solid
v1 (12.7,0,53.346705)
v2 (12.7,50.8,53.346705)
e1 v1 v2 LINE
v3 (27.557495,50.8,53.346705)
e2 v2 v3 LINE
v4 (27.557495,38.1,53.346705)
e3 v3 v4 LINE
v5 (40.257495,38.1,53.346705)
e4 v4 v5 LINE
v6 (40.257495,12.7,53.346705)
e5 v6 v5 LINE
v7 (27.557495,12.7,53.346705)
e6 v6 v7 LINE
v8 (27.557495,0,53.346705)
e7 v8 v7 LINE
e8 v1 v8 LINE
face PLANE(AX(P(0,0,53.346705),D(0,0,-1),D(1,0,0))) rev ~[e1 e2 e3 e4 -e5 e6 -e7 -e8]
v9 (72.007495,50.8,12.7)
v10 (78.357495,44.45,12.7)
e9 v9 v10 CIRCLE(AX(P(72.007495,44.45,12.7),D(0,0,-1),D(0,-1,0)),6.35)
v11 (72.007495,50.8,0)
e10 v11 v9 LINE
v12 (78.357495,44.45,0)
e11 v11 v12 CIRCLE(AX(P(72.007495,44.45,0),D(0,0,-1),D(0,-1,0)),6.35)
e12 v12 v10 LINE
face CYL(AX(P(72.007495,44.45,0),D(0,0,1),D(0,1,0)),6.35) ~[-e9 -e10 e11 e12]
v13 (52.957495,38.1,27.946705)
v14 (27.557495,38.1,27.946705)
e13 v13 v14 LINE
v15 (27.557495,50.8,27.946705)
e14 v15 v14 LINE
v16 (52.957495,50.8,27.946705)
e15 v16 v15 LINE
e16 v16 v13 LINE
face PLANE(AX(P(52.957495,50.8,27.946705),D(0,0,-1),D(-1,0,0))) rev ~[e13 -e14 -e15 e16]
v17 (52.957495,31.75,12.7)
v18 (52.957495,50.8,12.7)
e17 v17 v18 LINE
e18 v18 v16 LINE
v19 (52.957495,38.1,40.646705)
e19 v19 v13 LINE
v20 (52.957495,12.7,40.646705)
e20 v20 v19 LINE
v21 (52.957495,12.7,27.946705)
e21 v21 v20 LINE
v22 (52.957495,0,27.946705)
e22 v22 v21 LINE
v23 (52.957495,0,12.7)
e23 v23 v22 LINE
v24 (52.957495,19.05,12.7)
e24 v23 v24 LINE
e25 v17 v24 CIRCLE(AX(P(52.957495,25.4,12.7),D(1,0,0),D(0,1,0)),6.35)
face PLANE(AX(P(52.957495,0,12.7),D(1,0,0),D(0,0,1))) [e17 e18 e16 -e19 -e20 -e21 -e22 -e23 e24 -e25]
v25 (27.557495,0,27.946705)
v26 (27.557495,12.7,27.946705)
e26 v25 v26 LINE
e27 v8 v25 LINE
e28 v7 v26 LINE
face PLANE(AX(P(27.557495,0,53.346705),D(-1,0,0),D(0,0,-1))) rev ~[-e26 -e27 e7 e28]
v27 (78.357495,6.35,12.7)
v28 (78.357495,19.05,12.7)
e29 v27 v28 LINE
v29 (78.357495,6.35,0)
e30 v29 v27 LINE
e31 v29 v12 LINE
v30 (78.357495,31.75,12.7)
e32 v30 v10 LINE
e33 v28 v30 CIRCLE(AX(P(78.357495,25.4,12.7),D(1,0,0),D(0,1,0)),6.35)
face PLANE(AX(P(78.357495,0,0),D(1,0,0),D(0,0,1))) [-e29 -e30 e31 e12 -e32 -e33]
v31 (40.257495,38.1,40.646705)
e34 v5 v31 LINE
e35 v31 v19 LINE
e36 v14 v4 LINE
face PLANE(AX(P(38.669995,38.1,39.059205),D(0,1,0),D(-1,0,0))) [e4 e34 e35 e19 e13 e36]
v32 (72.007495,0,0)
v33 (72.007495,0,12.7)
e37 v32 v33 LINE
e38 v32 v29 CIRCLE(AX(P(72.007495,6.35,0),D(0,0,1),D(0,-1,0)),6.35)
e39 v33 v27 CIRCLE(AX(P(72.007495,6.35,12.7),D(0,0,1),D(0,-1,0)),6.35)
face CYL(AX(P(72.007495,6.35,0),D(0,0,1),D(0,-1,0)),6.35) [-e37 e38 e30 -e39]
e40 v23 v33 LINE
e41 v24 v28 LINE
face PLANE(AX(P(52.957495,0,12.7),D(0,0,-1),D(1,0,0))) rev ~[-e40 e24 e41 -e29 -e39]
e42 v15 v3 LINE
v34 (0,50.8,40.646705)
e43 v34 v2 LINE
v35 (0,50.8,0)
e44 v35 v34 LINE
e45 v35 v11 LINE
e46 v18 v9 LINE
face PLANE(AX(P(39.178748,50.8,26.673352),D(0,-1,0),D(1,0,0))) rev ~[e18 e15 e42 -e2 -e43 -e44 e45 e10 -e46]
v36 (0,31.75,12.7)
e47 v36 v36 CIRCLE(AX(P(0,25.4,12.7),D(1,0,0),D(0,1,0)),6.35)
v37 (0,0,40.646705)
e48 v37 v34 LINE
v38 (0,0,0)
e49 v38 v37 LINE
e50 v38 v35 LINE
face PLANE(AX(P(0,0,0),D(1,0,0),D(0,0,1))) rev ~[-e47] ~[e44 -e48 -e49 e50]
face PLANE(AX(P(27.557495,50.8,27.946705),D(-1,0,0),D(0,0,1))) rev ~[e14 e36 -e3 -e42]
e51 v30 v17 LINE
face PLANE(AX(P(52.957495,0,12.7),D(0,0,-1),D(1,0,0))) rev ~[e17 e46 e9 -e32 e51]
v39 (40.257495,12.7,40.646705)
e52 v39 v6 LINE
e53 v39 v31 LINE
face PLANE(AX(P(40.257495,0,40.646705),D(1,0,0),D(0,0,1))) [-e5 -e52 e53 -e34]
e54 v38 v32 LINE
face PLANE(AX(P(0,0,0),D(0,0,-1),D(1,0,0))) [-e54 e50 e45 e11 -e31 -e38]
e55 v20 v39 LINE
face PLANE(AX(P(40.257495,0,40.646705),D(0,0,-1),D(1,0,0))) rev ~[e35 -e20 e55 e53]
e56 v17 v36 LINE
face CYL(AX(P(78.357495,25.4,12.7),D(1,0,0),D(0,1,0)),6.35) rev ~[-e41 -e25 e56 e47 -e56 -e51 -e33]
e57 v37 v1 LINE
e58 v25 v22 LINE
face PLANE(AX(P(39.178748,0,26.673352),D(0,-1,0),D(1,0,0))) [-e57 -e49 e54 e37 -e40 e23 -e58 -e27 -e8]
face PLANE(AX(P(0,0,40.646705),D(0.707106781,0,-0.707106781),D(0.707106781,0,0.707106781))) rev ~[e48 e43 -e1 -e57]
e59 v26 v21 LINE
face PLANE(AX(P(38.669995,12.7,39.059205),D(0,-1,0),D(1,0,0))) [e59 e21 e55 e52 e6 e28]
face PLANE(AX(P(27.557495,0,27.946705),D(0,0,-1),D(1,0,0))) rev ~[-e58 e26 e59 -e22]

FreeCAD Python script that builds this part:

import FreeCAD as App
import Part
import Sketcher
Q = App.Units.Quantity


def edges_at(feature, points):
    """Names of the edges that pass closest to the given points."""
    edges = feature.Shape.Edges
    near = lambda p: min(range(len(edges)), key=lambda i: edges[i].distToShape(Part.Vertex(*p))[0])
    return sorted({f"Edge{near(p) + 1}" for p in points})

doc = App.newDocument("Part")
body = doc.addObject("PartDesign::Body", "Body")

# Sketch on XZ plane
sketch1 = doc.addObject("Sketcher::SketchObject", "Sketch")
body.addObject(sketch1)
sketch1.AttachmentSupport = (doc.XZ_Plane, [""])
sketch1.MapMode = "FlatFace"
sketch1.addGeometry([
    Part.LineSegment(App.Vector(0, 53.346705, 0), App.Vector(0, 0, 0)),
    Part.LineSegment(App.Vector(0, 0, 0), App.Vector(78.357495, 0, 0)),
    Part.LineSegment(App.Vector(78.357495, 0, 0), App.Vector(78.357495, 53.346705, 0)),
    Part.LineSegment(App.Vector(78.357495, 53.346705, 0), App.Vector(0, 53.346705, 0)),
], False)
sketch1.addConstraint([
    Sketcher.Constraint("Coincident", 0, 2, 1, 1),
    Sketcher.Constraint("Coincident", 1, 2, 2, 1),
    Sketcher.Constraint("Coincident", 2, 2, 3, 1),
    Sketcher.Constraint("Coincident", 3, 2, 0, 1),
    Sketcher.Constraint("Vertical", 0),
    Sketcher.Constraint("Horizontal", 1),
    Sketcher.Constraint("Vertical", 2),
    Sketcher.Constraint("Horizontal", 3),
    Sketcher.Constraint("Coincident", 0, 2, -1, 1),
    Sketcher.Constraint("DistanceX", 1, 1, 1, 2, 78.357495),
    Sketcher.Constraint("DistanceY", 0, 2, 0, 1, 53.346705),
])
pad1 = doc.addObject("PartDesign::Pad", "Pad")
body.addObject(pad1)
pad1.Profile = sketch1
pad1.Length = Q("2 in")
pad1.Reversed = True

# Sketch on XZ plane
sketch2 = doc.addObject("Sketcher::SketchObject", "Sketch001")
body.addObject(sketch2)
sketch2.AttachmentSupport = (doc.XZ_Plane, [""])
sketch2.MapMode = "FlatFace"
sketch2.addGeometry([
    Part.LineSegment(App.Vector(0, 53.346705, 0), App.Vector(0, 40.646705, 0)),
    Part.LineSegment(App.Vector(0, 40.646705, 0), App.Vector(12.7, 53.346705, 0)),
    Part.LineSegment(App.Vector(12.7, 53.346705, 0), App.Vector(0, 53.346705, 0)),
], False)
sketch2.addConstraint([
    Sketcher.Constraint("Coincident", 0, 2, 1, 1),
    Sketcher.Constraint("Coincident", 1, 2, 2, 1),
    Sketcher.Constraint("Coincident", 2, 2, 0, 1),
    Sketcher.Constraint("Vertical", 0),
    Sketcher.Constraint("Horizontal", 2),
    Sketcher.Constraint("PointOnObject", 0, 2, -2),
    Sketcher.Constraint("Equal", 2, 0),
    Sketcher.Constraint("DistanceX", 2, 2, 2, 1, Q("0.5 in")),
    Sketcher.Constraint("DistanceY", -1, 1, 0, 2, 40.646705),
])
pocket1 = doc.addObject("PartDesign::Pocket", "Pocket")
body.addObject(pocket1)
pocket1.Profile = sketch2
pocket1.Type = "ThroughAll"

# Sketch on XZ plane
sketch3 = doc.addObject("Sketcher::SketchObject", "Sketch002")
body.addObject(sketch3)
sketch3.AttachmentSupport = (doc.XZ_Plane, [""])
sketch3.MapMode = "FlatFace"
sketch3.addGeometry([
    Part.LineSegment(App.Vector(52.957495, 53.346705, 0), App.Vector(52.957495, 12.7, 0)),
    Part.LineSegment(App.Vector(52.957495, 12.7, 0), App.Vector(78.357495, 12.7, 0)),
    Part.LineSegment(App.Vector(78.357495, 12.7, 0), App.Vector(78.357495, 53.346705, 0)),
    Part.LineSegment(App.Vector(78.357495, 53.346705, 0), App.Vector(52.957495, 53.346705, 0)),
], False)
sketch3.addConstraint([
    Sketcher.Constraint("Coincident", 0, 2, 1, 1),
    Sketcher.Constraint("Coincident", 1, 2, 2, 1),
    Sketcher.Constraint("Coincident", 2, 2, 3, 1),
    Sketcher.Constraint("Coincident", 3, 2, 0, 1),
    Sketcher.Constraint("Vertical", 0),
    Sketcher.Constraint("Horizontal", 1),
    Sketcher.Constraint("Vertical", 2),
    Sketcher.Constraint("Horizontal", 3),
    Sketcher.Constraint("DistanceX", 1, 1, 1, 2, Q("1 in")),
    Sketcher.Constraint("DistanceY", -1, 1, 0, 2, Q("0.5 in")),
    Sketcher.Constraint("DistanceY", 0, 2, 0, 1, 40.646705),
    Sketcher.Constraint("DistanceX", -1, 1, 0, 2, 52.957495),
])
pocket2 = doc.addObject("PartDesign::Pocket", "Pocket001")
body.addObject(pocket2)
pocket2.Profile = sketch3
pocket2.Type = "ThroughAll"

# Sketch on XZ plane
sketch4 = doc.addObject("Sketcher::SketchObject", "Sketch003")
body.addObject(sketch4)
sketch4.AttachmentSupport = (doc.XZ_Plane, [""])
sketch4.MapMode = "FlatFace"
sketch4.addGeometry([
    Part.LineSegment(App.Vector(40.257495, 53.346705, 0), App.Vector(40.257495, 40.646705, 0)),
    Part.LineSegment(App.Vector(40.257495, 40.646705, 0), App.Vector(52.957495, 40.646705, 0)),
    Part.LineSegment(App.Vector(52.957495, 40.646705, 0), App.Vector(52.957495, 53.346705, 0)),
    Part.LineSegment(App.Vector(52.957495, 53.346705, 0), App.Vector(40.257495, 53.346705, 0)),
], False)
sketch4.addConstraint([
    Sketcher.Constraint("Coincident", 0, 2, 1, 1),
    Sketcher.Constraint("Coincident", 1, 2, 2, 1),
    Sketcher.Constraint("Coincident", 2, 2, 3, 1),
    Sketcher.Constraint("Coincident", 3, 2, 0, 1),
    Sketcher.Constraint("Vertical", 0),
    Sketcher.Constraint("Horizontal", 1),
    Sketcher.Constraint("Vertical", 2),
    Sketcher.Constraint("Horizontal", 3),
    Sketcher.Constraint("Equal", 3, 0),
    Sketcher.Constraint("DistanceX", 1, 1, 1, 2, Q("0.5 in")),
    Sketcher.Constraint("DistanceX", -1, 1, 0, 2, 40.257495),
    Sketcher.Constraint("DistanceY", -1, 1, 0, 2, 40.646705),
])
pocket3 = doc.addObject("PartDesign::Pocket", "Pocket002")
body.addObject(pocket3)
pocket3.Profile = sketch4
pocket3.Type = "ThroughAll"

# Sketch on XZ plane
sketch5 = doc.addObject("Sketcher::SketchObject", "Sketch004")
body.addObject(sketch5)
sketch5.AttachmentSupport = (doc.XZ_Plane, [""])
sketch5.MapMode = "FlatFace"
sketch5.addGeometry([
    Part.LineSegment(App.Vector(27.557495, 27.946705, 0), App.Vector(52.957495, 27.946705, 0)),  # 0
    Part.LineSegment(App.Vector(52.957495, 27.946705, 0), App.Vector(52.957495, 40.646705, 0)),  # 1
    Part.LineSegment(App.Vector(52.957495, 40.646705, 0), App.Vector(40.257495, 40.646705, 0)),  # 2
    Part.LineSegment(App.Vector(40.257495, 40.646705, 0), App.Vector(40.257495, 53.346705, 0)),  # 3
    Part.LineSegment(App.Vector(40.257495, 53.346705, 0), App.Vector(27.557495, 53.346705, 0)),  # 4
    Part.LineSegment(App.Vector(27.557495, 53.346705, 0), App.Vector(27.557495, 27.946705, 0)),  # 5
], False)
sketch5.addConstraint([
    Sketcher.Constraint("Coincident", 0, 2, 1, 1),
    Sketcher.Constraint("Coincident", 1, 2, 2, 1),
    Sketcher.Constraint("Coincident", 2, 2, 3, 1),
    Sketcher.Constraint("Coincident", 3, 2, 4, 1),
    Sketcher.Constraint("Coincident", 4, 2, 5, 1),
    Sketcher.Constraint("Coincident", 5, 2, 0, 1),
    Sketcher.Constraint("Horizontal", 0),
    Sketcher.Constraint("Vertical", 1),
    Sketcher.Constraint("Horizontal", 2),
    Sketcher.Constraint("Vertical", 3),
    Sketcher.Constraint("Horizontal", 4),
    Sketcher.Constraint("Vertical", 5),
    Sketcher.Constraint("Equal", 2, 4),
    Sketcher.Constraint("Equal", 4, 1),
    Sketcher.Constraint("Equal", 1, 3),
    Sketcher.Constraint("DistanceX", 0, 1, 0, 2, Q("1 in")),
    Sketcher.Constraint("DistanceX", -1, 1, 0, 2, 52.957495),
    Sketcher.Constraint("DistanceY", -1, 1, 0, 2, 27.946705),
])
pocket4 = doc.addObject("PartDesign::Pocket", "Pocket003")
body.addObject(pocket4)
pocket4.Profile = sketch5
pocket4.Length = Q("0.5 in")

# Sketch on XZ plane
sketch6 = doc.addObject("Sketcher::SketchObject", "Sketch005")
body.addObject(sketch6)
sketch6.AttachmentSupport = (doc.XZ_Plane, [""])
sketch6.MapMode = "FlatFace"
sketch6.AttachmentOffset = App.Placement(App.Vector(0, 0, -2 * 25.4), App.Rotation())
sketch6.addGeometry([
    Part.LineSegment(App.Vector(52.957495, 40.646705, 0), App.Vector(52.957495, 27.946705, 0)),  # 0
    Part.LineSegment(App.Vector(52.957495, 27.946705, 0), App.Vector(27.557495, 27.946705, 0)),  # 1
    Part.LineSegment(App.Vector(27.557495, 27.946705, 0), App.Vector(27.557495, 53.346705, 0)),  # 2
    Part.LineSegment(App.Vector(27.557495, 53.346705, 0), App.Vector(40.257495, 53.346705, 0)),  # 3
    Part.LineSegment(App.Vector(40.257495, 53.346705, 0), App.Vector(40.257495, 40.646705, 0)),  # 4
    Part.LineSegment(App.Vector(40.257495, 40.646705, 0), App.Vector(52.957495, 40.646705, 0)),  # 5
], False)
sketch6.addConstraint([
    Sketcher.Constraint("Coincident", 0, 2, 1, 1),
    Sketcher.Constraint("Coincident", 1, 2, 2, 1),
    Sketcher.Constraint("Coincident", 2, 2, 3, 1),
    Sketcher.Constraint("Coincident", 3, 2, 4, 1),
    Sketcher.Constraint("Coincident", 4, 2, 5, 1),
    Sketcher.Constraint("Coincident", 5, 2, 0, 1),
    Sketcher.Constraint("Vertical", 0),
    Sketcher.Constraint("Horizontal", 1),
    Sketcher.Constraint("Vertical", 2),
    Sketcher.Constraint("Horizontal", 3),
    Sketcher.Constraint("Vertical", 4),
    Sketcher.Constraint("Horizontal", 5),
    Sketcher.Constraint("Equal", 3, 5),
    Sketcher.Constraint("Equal", 5, 0),
    Sketcher.Constraint("Equal", 1, 2),
    Sketcher.Constraint("DistanceX", 1, 2, 1, 1, Q("1 in")),
    Sketcher.Constraint("DistanceX", -1, 1, 0, 2, 52.957495),
    Sketcher.Constraint("DistanceY", -1, 1, 0, 2, 27.946705),
])
pocket5 = doc.addObject("PartDesign::Pocket", "Pocket004")
body.addObject(pocket5)
pocket5.Profile = sketch6
pocket5.Length = Q("0.5 in")
pocket5.Reversed = True

# Sketch on YZ plane
sketch7 = doc.addObject("Sketcher::SketchObject", "Sketch006")
body.addObject(sketch7)
sketch7.AttachmentSupport = (doc.YZ_Plane, [""])
sketch7.MapMode = "FlatFace"
sketch7.AttachmentOffset = App.Placement(App.Vector(0, 0, 78.357495), App.Rotation())
sketch7.addGeometry(Part.Circle(App.Vector(25.4, 12.7, 0), App.Vector(0, 0, 1), 6.35), False)
sketch7.addConstraint([
    Sketcher.Constraint("Diameter", 0, Q("0.5 in")),
    Sketcher.Constraint("DistanceX", -1, 1, 0, 3, Q("1 in")),
    Sketcher.Constraint("DistanceY", -1, 1, 0, 3, Q("0.5 in")),
])
pocket6 = doc.addObject("PartDesign::Pocket", "Pocket005")
body.addObject(pocket6)
pocket6.Profile = sketch7
pocket6.Type = "ThroughAll"
doc.recompute()

fillet = doc.addObject("PartDesign::Fillet", "Fillet")
body.addObject(fillet)
fillet.Base = (pocket6, edges_at(pocket6, [(78.357, 50.8, 6.35), (78.357, 0, 6.35)]))
fillet.Radius = Q("0.25 in")

doc.recompute()
